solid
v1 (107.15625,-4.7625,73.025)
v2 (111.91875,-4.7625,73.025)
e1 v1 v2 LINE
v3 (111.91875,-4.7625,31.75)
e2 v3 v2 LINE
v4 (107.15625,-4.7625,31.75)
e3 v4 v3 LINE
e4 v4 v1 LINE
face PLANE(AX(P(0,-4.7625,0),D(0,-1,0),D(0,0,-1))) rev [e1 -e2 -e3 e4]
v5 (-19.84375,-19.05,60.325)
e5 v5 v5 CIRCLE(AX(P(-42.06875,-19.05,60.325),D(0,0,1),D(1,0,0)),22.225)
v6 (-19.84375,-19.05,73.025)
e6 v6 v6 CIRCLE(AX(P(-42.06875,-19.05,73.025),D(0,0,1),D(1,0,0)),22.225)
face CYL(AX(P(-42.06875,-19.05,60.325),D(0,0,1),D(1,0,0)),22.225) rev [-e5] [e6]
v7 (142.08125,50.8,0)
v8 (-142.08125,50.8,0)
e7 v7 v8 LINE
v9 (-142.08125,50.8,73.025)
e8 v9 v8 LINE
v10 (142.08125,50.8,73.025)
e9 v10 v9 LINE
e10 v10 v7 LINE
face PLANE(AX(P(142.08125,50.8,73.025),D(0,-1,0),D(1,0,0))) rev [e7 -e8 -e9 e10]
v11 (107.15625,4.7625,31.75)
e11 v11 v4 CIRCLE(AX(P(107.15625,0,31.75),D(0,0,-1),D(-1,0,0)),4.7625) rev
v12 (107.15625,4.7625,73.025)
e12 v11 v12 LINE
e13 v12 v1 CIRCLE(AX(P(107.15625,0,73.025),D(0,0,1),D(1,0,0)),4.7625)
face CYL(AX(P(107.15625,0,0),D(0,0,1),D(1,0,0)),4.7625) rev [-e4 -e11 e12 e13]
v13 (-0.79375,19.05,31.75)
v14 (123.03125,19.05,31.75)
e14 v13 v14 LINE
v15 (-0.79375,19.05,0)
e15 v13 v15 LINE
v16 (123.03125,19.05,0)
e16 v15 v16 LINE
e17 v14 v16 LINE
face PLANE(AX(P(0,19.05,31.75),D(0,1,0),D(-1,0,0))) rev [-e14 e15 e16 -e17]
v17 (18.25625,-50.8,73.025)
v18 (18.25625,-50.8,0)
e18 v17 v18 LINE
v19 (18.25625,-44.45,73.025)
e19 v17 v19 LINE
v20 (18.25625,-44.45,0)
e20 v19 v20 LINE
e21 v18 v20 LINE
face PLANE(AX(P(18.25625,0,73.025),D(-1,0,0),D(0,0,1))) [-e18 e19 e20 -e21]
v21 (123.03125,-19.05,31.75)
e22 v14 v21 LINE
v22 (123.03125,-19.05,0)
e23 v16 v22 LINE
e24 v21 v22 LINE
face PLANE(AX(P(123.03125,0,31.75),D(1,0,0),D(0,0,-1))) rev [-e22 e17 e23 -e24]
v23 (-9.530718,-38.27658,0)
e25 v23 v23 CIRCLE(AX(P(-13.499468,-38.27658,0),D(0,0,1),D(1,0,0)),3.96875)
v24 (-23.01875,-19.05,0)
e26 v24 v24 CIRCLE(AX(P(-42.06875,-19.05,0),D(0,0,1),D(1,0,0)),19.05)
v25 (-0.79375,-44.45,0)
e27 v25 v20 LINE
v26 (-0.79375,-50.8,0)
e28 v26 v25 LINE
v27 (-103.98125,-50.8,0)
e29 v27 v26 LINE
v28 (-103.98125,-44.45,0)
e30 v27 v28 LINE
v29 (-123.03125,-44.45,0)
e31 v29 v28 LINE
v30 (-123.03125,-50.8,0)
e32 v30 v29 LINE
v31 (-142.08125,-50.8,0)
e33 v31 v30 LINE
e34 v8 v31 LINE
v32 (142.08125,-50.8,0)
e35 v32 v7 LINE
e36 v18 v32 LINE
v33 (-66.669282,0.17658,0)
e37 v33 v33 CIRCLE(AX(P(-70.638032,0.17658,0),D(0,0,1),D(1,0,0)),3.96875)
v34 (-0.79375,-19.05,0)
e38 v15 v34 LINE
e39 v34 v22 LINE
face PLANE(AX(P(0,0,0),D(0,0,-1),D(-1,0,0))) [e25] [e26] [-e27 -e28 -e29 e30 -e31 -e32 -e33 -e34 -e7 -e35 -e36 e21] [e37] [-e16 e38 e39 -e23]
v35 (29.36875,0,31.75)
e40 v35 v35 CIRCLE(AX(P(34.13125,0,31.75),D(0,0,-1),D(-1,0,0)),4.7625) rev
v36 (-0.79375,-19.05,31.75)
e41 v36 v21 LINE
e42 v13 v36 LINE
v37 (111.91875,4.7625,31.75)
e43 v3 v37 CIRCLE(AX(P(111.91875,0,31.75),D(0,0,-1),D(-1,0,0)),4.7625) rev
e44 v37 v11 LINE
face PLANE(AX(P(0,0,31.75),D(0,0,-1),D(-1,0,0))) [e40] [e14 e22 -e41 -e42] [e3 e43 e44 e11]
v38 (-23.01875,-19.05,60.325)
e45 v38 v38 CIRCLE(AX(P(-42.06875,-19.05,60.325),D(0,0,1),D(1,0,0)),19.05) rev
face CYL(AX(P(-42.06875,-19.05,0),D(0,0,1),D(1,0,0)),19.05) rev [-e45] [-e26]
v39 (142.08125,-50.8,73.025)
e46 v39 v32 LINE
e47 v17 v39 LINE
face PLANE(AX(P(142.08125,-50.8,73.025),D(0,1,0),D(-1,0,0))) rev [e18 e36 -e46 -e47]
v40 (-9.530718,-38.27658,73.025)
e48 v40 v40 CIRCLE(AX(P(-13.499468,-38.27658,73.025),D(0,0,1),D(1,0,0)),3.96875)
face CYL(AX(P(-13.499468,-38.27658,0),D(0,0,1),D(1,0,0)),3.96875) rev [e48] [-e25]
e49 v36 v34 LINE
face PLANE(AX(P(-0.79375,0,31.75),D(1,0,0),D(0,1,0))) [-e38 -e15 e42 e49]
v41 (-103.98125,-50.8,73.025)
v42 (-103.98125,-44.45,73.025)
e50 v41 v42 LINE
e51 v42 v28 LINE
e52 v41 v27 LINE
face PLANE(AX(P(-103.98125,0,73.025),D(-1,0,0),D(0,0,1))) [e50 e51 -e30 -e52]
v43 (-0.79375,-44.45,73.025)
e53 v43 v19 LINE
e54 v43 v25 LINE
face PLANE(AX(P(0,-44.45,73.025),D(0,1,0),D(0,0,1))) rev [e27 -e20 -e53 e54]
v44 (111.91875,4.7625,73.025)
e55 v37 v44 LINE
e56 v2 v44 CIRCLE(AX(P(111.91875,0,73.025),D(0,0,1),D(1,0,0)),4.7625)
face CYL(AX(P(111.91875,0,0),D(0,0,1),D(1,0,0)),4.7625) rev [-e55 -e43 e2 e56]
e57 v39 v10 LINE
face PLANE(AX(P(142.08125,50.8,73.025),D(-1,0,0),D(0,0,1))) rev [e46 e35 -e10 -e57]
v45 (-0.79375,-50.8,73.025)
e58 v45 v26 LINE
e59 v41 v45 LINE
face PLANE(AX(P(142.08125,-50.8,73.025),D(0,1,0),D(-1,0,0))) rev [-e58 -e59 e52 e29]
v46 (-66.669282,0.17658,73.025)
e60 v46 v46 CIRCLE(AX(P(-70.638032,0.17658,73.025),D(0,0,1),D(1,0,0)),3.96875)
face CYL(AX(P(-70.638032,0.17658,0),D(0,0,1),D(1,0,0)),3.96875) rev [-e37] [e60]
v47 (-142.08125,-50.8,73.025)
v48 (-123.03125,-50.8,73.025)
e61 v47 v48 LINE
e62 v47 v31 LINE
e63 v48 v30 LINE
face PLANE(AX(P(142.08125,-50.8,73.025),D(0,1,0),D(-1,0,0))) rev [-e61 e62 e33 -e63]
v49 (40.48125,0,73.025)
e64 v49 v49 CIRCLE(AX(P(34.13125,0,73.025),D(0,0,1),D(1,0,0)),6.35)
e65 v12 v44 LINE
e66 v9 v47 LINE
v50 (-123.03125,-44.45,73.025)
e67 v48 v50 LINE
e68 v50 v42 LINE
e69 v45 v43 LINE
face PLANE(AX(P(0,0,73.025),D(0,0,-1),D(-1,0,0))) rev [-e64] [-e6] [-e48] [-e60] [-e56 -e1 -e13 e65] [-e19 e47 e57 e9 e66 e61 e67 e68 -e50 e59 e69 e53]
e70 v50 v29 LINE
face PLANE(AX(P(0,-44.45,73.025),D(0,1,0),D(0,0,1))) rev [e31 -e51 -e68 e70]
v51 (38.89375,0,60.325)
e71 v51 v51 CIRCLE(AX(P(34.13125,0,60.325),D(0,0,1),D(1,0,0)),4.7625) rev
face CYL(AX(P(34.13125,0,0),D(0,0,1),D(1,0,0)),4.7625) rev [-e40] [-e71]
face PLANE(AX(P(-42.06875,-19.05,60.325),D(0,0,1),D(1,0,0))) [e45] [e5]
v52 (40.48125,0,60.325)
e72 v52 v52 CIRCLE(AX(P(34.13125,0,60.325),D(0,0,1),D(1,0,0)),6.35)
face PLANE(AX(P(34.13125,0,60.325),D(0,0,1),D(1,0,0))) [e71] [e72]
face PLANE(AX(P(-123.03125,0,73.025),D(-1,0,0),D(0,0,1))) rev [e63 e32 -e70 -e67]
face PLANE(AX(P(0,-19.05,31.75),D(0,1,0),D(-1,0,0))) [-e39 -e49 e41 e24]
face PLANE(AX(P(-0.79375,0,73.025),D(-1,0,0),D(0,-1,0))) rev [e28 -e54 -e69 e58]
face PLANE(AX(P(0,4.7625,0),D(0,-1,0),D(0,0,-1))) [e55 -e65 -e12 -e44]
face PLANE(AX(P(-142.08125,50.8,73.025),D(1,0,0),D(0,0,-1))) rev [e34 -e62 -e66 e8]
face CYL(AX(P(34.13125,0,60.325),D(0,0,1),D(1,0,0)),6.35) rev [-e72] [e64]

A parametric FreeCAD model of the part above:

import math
import FreeCAD as App
import Part
import Sketcher
Q = App.Units.Quantity


def add_polygon(sketch, points):
    """Adds a closed chain of lines whose ends are joined by coincident constraints."""
    first, n = sketch.GeometryCount, len(points)
    for a, b in zip(points, points[1:] + points[:1]):
        sketch.addGeometry(Part.LineSegment(App.Vector(*a, 0), App.Vector(*b, 0)), False)
    for i in range(n):
        sketch.addConstraint(Sketcher.Constraint("Coincident", first + i, 2, first + (i + 1) % n, 1))

doc = App.newDocument("Part")
body = doc.addObject("PartDesign::Body", "Body")

sketch1 = doc.addObject("Sketcher::SketchObject", "Sketch")
body.addObject(sketch1)
sketch1.AttachmentSupport = (doc.XY_Plane, [""])
sketch1.MapMode = "FlatFace"
add_polygon(sketch1, [(-142, 51), (-142, -51), (142, -51), (142, 51)])
sketch1.addConstraint([
    Sketcher.Constraint("Vertical", 0),
    Sketcher.Constraint("Horizontal", 1),
    Sketcher.Constraint("Vertical", 2),
    Sketcher.Constraint("Horizontal", 3),
    Sketcher.Constraint("Symmetric", 0, 2, 2, 2, -1, 1),
    Sketcher.Constraint("DistanceY", 0, 2, 0, 1, Q("4 in")),
    Sketcher.Constraint("DistanceX", 1, 1, 1, 2, Q("11.1875 in")),
])
pad1 = doc.addObject("PartDesign::Pad", "Pad")
body.addObject(pad1)
pad1.Profile = sketch1
pad1.Length = Q("2.875 in")

sketch2 = doc.addObject("Sketcher::SketchObject", "Sketch001")
body.addObject(sketch2)
sketch2.AttachmentSupport = (doc.XY_Plane, [""])
sketch2.MapMode = "FlatFace"
sketch2.AttachmentOffset = App.Placement(App.Vector(0, 0, 2.875 * 25.4), App.Rotation())
sketch2.addGeometry([
    Part.LineSegment(App.Vector(111.9, 4.8, 0), App.Vector(107.2, 4.8, 0)),
    Part.ArcOfCircle(Part.Circle(App.Vector(107.2, 0, 0), App.Vector(0, 0, 1), 4.8), math.radians(90), math.radians(270)),
    Part.LineSegment(App.Vector(107.2, -4.8, 0), App.Vector(111.9, -4.8, 0)),
    Part.ArcOfCircle(Part.Circle(App.Vector(111.9, 0, 0), App.Vector(0, 0, 1), 4.8), math.radians(-90), math.radians(90)),
    Part.Circle(App.Vector(-42.1, -19.1, 0), App.Vector(0, 0, 1), 19.1),
    Part.Circle(App.Vector(34.1, 0, 0), App.Vector(0, 0, 1), 4.8),
    Part.Circle(App.Vector(-13.5, -38.3, 0), App.Vector(0, 0, 1), 4),
    Part.Circle(App.Vector(-70.6, 0.2, 0), App.Vector(0, 0, 1), 4),
], False)
sketch2.addConstraint([
    Sketcher.Constraint("Tangent", 0, 2, 1, 1),
    Sketcher.Constraint("Tangent", 1, 2, 2, 1),
    Sketcher.Constraint("Tangent", 2, 2, 3, 1),
    Sketcher.Constraint("Tangent", 3, 2, 0, 1),
    Sketcher.Constraint("Horizontal", 0),
    Sketcher.Constraint("Horizontal", 2),
    Sketcher.Constraint("Equal", 3, 5),
    Sketcher.Constraint("Equal", 6, 7),
    Sketcher.Constraint("PointOnObject", 1, 3, -1),
    Sketcher.Constraint("PointOnObject", 5, 3, -1),
    Sketcher.Constraint("Diameter", 4, Q("1.5 in")),
    Sketcher.Constraint("Diameter", 5, Q("0.375 in")),
    Sketcher.Constraint("Diameter", 6, Q("0.3125 in")),
    Sketcher.Constraint("DistanceX", 4, 3, 5, 3, Q("3 in")),
    Sketcher.Constraint("DistanceX", 0, 2, 0, 1, Q("0.1875 in")),
    Sketcher.Constraint("DistanceY", 4, 3, -1, 1, Q("0.75 in")),
    Sketcher.Constraint("DistanceX", -1, 1, 1, 3, Q("4.21875 in")),
    Sketcher.Constraint("DistanceX", 4, 3, -1, 1, Q("1.65625 in")),
    Sketcher.Constraint("DistanceY", 6, 3, -1, 1, Q("38.27658 mm")),
    Sketcher.Constraint("DistanceY", -1, 1, 7, 3, Q("0.17658 mm")),
    Sketcher.Constraint("DistanceX", 6, 3, -1, 1, Q("13.499468 mm")),
    Sketcher.Constraint("DistanceX", 7, 3, -1, 1, Q("70.638032 mm")),
])
pocket1 = doc.addObject("PartDesign::Pocket", "Pocket")
body.addObject(pocket1)
pocket1.Profile = sketch2
pocket1.Type = "ThroughAll"

sketch3 = doc.addObject("Sketcher::SketchObject", "Sketch002")
body.addObject(sketch3)
sketch3.AttachmentSupport = (doc.XY_Plane, [""])
sketch3.MapMode = "FlatFace"
sketch3.AttachmentOffset = App.Placement(App.Vector(0, 0, 2.875 * 25.4), App.Rotation())
sketch3.addGeometry([
    Part.Circle(App.Vector(-42, -19, 0), App.Vector(0, 0, 1), 22),
    Part.Circle(App.Vector(34, 0, 0), App.Vector(0, 0, 1), 6),
], False)
sketch3.addConstraint([
    Sketcher.Constraint("PointOnObject", 1, 3, -1),
    Sketcher.Constraint("Diameter", 1, Q("0.5 in")),
    Sketcher.Constraint("Diameter", 0, Q("1.75 in")),
    Sketcher.Constraint("DistanceX", 0, 3, 1, 3, Q("3 in")),
    Sketcher.Constraint("DistanceY", 0, 3, -1, 1, Q("0.75 in")),
    Sketcher.Constraint("DistanceX", 0, 3, -1, 1, Q("1.65625 in")),
])
pocket2 = doc.addObject("PartDesign::Pocket", "Pocket001")
body.addObject(pocket2)
pocket2.Profile = sketch3
pocket2.Length = Q("0.5 in")

sketch4 = doc.addObject("Sketcher::SketchObject", "Sketch003")
body.addObject(sketch4)
sketch4.AttachmentSupport = (doc.XY_Plane, [""])
sketch4.MapMode = "FlatFace"
sketch4.AttachmentOffset = App.Placement(App.Vector(0, 0, 1.25 * 25.4), App.Rotation())
add_polygon(sketch4, [(123, 19.1), (123, -19.1), (-0.8, -19.1), (-0.8, 19.1)])
sketch4.addGeometry(Part.LineSegment(App.Vector(111.9, 4.8, 0), App.Vector(107.2, 4.8, 0)), False)
sketch4.addGeometry(Part.ArcOfCircle(Part.Circle(App.Vector(107.2, 0, 0), App.Vector(0, 0, 1), 4.8), math.radians(90), math.radians(270)), False)
sketch4.addGeometry(Part.LineSegment(App.Vector(107.2, -4.8, 0), App.Vector(111.9, -4.8, 0)), False)
sketch4.addGeometry(Part.ArcOfCircle(Part.Circle(App.Vector(111.9, 0, 0), App.Vector(0, 0, 1), 4.8), math.radians(-90), math.radians(90)), False)
sketch4.addGeometry(Part.Circle(App.Vector(34.1, 0, 0), App.Vector(0, 0, 1), 4.8), False)
sketch4.addConstraint([
    Sketcher.Constraint("Tangent", 4, 2, 5, 1),
    Sketcher.Constraint("Tangent", 5, 2, 6, 1),
    Sketcher.Constraint("Tangent", 6, 2, 7, 1),
    Sketcher.Constraint("Tangent", 7, 2, 4, 1),
    Sketcher.Constraint("Vertical", 0),
    Sketcher.Constraint("Horizontal", 1),
    Sketcher.Constraint("Vertical", 2),
    Sketcher.Constraint("Horizontal", 3),
    Sketcher.Constraint("Horizontal", 4),
    Sketcher.Constraint("Horizontal", 6),
    Sketcher.Constraint("Equal", 7, 8),
    Sketcher.Constraint("PointOnObject", 5, 3, -1),
    Sketcher.Constraint("PointOnObject", 8, 3, -1),
    Sketcher.Constraint("Diameter", 8, Q("0.375 in")),
    Sketcher.Constraint("DistanceY", 0, 2, 0, 1, Q("1.5 in")),
    Sketcher.Constraint("DistanceX", 8, 3, 0, 2, Q("3.5 in")),
    Sketcher.Constraint("DistanceX", 1, 2, 1, 1, Q("4.875 in")),
    Sketcher.Constraint("DistanceX", 4, 2, 4, 1, Q("0.1875 in")),
    Sketcher.Constraint("DistanceY", 0, 2, -1, 1, Q("0.75 in")),
    Sketcher.Constraint("DistanceX", 1, 2, 5, 3, Q("4.25 in")),
    Sketcher.Constraint("DistanceX", -1, 1, 5, 3, Q("4.21875 in")),
])
pocket3 = doc.addObject("PartDesign::Pocket", "Pocket002")
body.addObject(pocket3)
pocket3.Profile = sketch4
pocket3.Length = Q("1.25 in")

sketch5 = doc.addObject("Sketcher::SketchObject", "Sketch004")
body.addObject(sketch5)
sketch5.AttachmentSupport = (doc.XY_Plane, [""])
sketch5.MapMode = "FlatFace"
add_polygon(sketch5, [(18, -44), (18, -51), (-1, -51), (-1, -44)])
add_polygon(sketch5, [(-104, -44), (-104, -51), (-123, -51), (-123, -44)])
sketch5.addConstraint([
    Sketcher.Constraint("Vertical", 0),
    Sketcher.Constraint("Horizontal", 1),
    Sketcher.Constraint("Vertical", 2),
    Sketcher.Constraint("Horizontal", 3),
    Sketcher.Constraint("Vertical", 4),
    Sketcher.Constraint("Horizontal", 5),
    Sketcher.Constraint("Vertical", 6),
    Sketcher.Constraint("Horizontal", 7),
    Sketcher.Constraint("Horizontal", 1, 2, 4, 2),
    Sketcher.Constraint("Horizontal", 3, 2, 6, 2),
    Sketcher.Constraint("Equal", 3, 5),
    Sketcher.Constraint("DistanceY", 0, 2, -1, 1, Q("2 in")),
    Sketcher.Constraint("DistanceX", 1, 2, 1, 1, Q("0.75 in")),
    Sketcher.Constraint("DistanceY", 0, 2, 0, 1, Q("0.25 in")),
    Sketcher.Constraint("DistanceX", -1, 1, 0, 2, Q("0.71875 in")),
    Sketcher.Constraint("DistanceX", 4, 2, -1, 1, Q("4.09375 in")),
])
pocket4 = doc.addObject("PartDesign::Pocket", "Pocket003")
body.addObject(pocket4)
pocket4.Profile = sketch5
pocket4.Type = "ThroughAll"
pocket4.Reversed = True

doc.recompute()
